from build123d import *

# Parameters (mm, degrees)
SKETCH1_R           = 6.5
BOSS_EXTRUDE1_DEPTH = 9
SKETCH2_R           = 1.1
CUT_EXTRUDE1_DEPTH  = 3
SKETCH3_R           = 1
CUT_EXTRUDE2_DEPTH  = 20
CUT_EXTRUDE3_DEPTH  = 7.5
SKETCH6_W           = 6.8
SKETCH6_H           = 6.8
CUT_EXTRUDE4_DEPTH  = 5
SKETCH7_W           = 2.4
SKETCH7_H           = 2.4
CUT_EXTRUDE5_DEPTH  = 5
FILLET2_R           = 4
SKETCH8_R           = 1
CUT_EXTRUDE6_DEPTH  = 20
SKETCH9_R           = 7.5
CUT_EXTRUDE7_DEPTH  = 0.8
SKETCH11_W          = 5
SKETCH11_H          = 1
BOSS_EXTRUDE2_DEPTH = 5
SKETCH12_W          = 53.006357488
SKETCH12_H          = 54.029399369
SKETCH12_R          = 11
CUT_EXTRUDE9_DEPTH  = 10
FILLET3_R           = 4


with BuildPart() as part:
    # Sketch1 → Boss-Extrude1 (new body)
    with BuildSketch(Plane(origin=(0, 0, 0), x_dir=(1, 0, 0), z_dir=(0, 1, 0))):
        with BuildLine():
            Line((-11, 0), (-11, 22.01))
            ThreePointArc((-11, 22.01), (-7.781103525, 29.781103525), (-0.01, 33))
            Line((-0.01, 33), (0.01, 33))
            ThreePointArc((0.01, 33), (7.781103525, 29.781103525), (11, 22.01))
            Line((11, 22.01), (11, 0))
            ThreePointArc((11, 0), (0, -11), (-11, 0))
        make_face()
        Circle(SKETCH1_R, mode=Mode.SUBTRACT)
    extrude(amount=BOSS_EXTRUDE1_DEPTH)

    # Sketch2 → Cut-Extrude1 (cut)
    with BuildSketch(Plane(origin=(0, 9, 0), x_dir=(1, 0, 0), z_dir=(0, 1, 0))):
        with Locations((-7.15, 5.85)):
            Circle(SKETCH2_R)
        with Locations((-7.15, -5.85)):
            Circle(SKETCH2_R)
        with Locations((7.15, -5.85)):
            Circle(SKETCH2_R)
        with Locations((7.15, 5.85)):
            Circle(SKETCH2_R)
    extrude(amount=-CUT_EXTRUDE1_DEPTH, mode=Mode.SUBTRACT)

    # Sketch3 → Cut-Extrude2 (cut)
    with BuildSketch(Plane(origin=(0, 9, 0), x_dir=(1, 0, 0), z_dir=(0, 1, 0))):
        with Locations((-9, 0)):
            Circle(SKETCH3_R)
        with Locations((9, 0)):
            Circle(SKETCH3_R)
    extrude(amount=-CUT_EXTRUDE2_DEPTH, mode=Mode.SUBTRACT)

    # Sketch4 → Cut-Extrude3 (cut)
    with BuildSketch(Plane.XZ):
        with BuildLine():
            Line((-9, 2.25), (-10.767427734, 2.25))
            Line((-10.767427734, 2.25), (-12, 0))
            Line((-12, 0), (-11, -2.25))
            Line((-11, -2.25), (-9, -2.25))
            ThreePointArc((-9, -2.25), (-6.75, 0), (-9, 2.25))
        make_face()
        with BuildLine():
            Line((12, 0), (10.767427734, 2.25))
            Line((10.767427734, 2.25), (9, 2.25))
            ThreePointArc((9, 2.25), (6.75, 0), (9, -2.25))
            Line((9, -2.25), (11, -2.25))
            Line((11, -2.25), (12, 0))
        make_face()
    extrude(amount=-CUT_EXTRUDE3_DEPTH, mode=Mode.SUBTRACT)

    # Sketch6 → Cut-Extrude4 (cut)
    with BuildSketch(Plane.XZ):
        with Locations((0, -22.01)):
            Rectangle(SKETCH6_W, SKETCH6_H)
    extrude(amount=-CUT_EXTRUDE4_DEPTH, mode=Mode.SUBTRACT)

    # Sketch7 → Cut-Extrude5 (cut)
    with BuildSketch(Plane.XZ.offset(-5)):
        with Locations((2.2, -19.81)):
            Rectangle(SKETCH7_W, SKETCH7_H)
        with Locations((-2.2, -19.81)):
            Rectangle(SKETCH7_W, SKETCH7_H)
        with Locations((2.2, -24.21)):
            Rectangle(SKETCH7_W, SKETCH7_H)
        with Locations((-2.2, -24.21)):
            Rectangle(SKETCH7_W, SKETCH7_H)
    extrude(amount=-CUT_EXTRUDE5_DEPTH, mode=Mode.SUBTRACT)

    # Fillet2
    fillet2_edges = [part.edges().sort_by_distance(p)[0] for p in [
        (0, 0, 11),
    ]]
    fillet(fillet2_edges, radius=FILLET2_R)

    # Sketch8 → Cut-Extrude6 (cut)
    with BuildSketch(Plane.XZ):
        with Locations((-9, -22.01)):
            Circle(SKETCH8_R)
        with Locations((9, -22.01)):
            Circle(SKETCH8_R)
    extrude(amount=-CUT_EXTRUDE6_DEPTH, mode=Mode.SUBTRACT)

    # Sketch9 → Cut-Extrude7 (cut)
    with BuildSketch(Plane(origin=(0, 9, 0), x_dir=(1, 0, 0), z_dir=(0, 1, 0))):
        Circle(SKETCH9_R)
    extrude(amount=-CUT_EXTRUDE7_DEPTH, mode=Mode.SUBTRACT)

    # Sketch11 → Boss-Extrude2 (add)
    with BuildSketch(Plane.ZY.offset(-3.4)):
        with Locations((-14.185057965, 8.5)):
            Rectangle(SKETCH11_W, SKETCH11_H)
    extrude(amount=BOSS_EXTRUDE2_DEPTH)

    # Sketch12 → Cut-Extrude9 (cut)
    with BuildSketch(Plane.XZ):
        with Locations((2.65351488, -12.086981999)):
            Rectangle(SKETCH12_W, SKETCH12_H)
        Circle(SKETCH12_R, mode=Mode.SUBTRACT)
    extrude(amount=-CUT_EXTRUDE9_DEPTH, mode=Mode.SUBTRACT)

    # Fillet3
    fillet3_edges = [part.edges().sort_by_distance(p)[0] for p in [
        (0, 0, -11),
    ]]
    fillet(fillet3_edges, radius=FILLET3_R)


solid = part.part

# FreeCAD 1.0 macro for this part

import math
import FreeCAD as App
import Part
import Sketcher

V = App.Vector
Q = App.Units.Quantity


def edges_at(feature, points):
    """Names of the edges that pass closest to the given points."""
    edges = feature.Shape.Edges
    near = lambda p: min(range(len(edges)), key=lambda i: edges[i].distToShape(Part.Vertex(*p))[0])
    return sorted({f"Edge{near(p) + 1}" for p in points})

doc = App.newDocument("Part")
body = doc.addObject("PartDesign::Body", "Body")

sketch1 = body.newObject("Sketcher::SketchObject", "Sketch")
sketch1.AttachmentSupport = (doc.getObject("XZ_Plane"), [""])
sketch1.MapMode = "FlatFace"
sketch1.addGeometry(Part.LineSegment(V(-11, -22.01, 0), V(-11, 0, 0)), False)
sketch1.addGeometry(Part.ArcOfCircle(Part.Circle(V(0, 0, 0), V(0, 0, 1), 11), math.radians(0), math.radians(180)), False)
sketch1.addGeometry(Part.LineSegment(V(11, 0, 0), V(11, -22.01, 0)), False)
sketch1.addGeometry(Part.ArcOfCircle(Part.Circle(V(0.01, -22.01, 0), V(0, 0, 1), 10.99), math.radians(-90), math.radians(0)), False)
sketch1.addGeometry(Part.LineSegment(V(0.01, -33, 0), V(-0.01, -33, 0)), False)
sketch1.addGeometry(Part.ArcOfCircle(Part.Circle(V(-0.01, -22.01, 0), V(0, 0, 1), 10.99), math.radians(-180), math.radians(-90)), False)
sketch1.addGeometry(Part.Circle(V(0, 0, 0), V(0, 0, 1), 6.5), False)
sketch1.addConstraint(Sketcher.Constraint("Tangent", 0, 2, 1, 2))
sketch1.addConstraint(Sketcher.Constraint("Tangent", 1, 1, 2, 1))
sketch1.addConstraint(Sketcher.Constraint("Tangent", 2, 2, 3, 2))
sketch1.addConstraint(Sketcher.Constraint("Tangent", 3, 1, 4, 1))
sketch1.addConstraint(Sketcher.Constraint("Tangent", 4, 2, 5, 2))
sketch1.addConstraint(Sketcher.Constraint("Tangent", 5, 1, 0, 1))
sketch1.addConstraint(Sketcher.Constraint("Vertical", 0))
sketch1.addConstraint(Sketcher.Constraint("Vertical", 2))
sketch1.addConstraint(Sketcher.Constraint("Coincident", 1, 3, -1, 1))
sketch1.addConstraint(Sketcher.Constraint("Coincident", 6, 3, -1, 1))
sketch1.addConstraint(Sketcher.Constraint("Equal", 3, 5))
sketch1.addConstraint(Sketcher.Constraint("Vertical", 5, 3, 4, 2))
sketch1.addConstraint(Sketcher.Constraint("Diameter", 6, Q("13 mm")))
sketch1.addConstraint(Sketcher.Constraint("Radius", 1, Q("11 mm")))
sketch1.addConstraint(Sketcher.Constraint("Radius", 3, Q("10.99 mm")))
sketch1.addConstraint(Sketcher.Constraint("DistanceY", 3, 1, -1, 1, Q("33 mm")))
pad1 = body.newObject("PartDesign::Pad", "Pad")
pad1.Profile = sketch1
pad1.Length = 9
pad1.Reversed = True

sketch2 = body.newObject("Sketcher::SketchObject", "Sketch001")
sketch2.AttachmentSupport = (doc.getObject("XZ_Plane"), [""])
sketch2.MapMode = "FlatFace"
sketch2.AttachmentOffset = App.Placement(V(0, 0, -9), App.Rotation())
sketch2.addGeometry(Part.Circle(V(-7.15, -5.85, 0), V(0, 0, 1), 1.1), False)
sketch2.addGeometry(Part.Circle(V(-7.15, 5.85, 0), V(0, 0, 1), 1.1), False)
sketch2.addGeometry(Part.Circle(V(7.15, 5.85, 0), V(0, 0, 1), 1.1), False)
sketch2.addGeometry(Part.Circle(V(7.15, -5.85, 0), V(0, 0, 1), 1.1), False)
sketch2.addConstraint(Sketcher.Constraint("Equal", 0, 1))
sketch2.addConstraint(Sketcher.Constraint("Equal", 1, 2))
sketch2.addConstraint(Sketcher.Constraint("Equal", 2, 3))
sketch2.addConstraint(Sketcher.Constraint("Symmetric", 0, 3, 2, 3, -1, 1))
sketch2.addConstraint(Sketcher.Constraint("Symmetric", 1, 3, 3, 3, -1, 1))
sketch2.addConstraint(Sketcher.Constraint("Symmetric", 1, 3, 2, 3, -2))
sketch2.addConstraint(Sketcher.Constraint("Diameter", 0, Q("2.2 mm")))
sketch2.addConstraint(Sketcher.Constraint("DistanceY", 0, 3, 1, 3, Q("11.7 mm")))
sketch2.addConstraint(Sketcher.Constraint("DistanceX", 1, 3, 2, 3, Q("14.3 mm")))
pocket1 = body.newObject("PartDesign::Pocket", "Pocket")
pocket1.Profile = sketch2
pocket1.Length = 3
pocket1.Reversed = True

sketch3 = body.newObject("Sketcher::SketchObject", "Sketch002")
sketch3.AttachmentSupport = (doc.getObject("XZ_Plane"), [""])
sketch3.MapMode = "FlatFace"
sketch3.AttachmentOffset = App.Placement(V(0, 0, -9), App.Rotation())
sketch3.addGeometry(Part.Circle(V(-9, 0, 0), V(0, 0, 1), 1), False)
sketch3.addGeometry(Part.Circle(V(9, 0, 0), V(0, 0, 1), 1), False)
sketch3.addConstraint(Sketcher.Constraint("Equal", 0, 1))
sketch3.addConstraint(Sketcher.Constraint("Symmetric", 0, 3, 1, 3, -1, 1))
sketch3.addConstraint(Sketcher.Constraint("PointOnObject", 0, 3, -1))
sketch3.addConstraint(Sketcher.Constraint("Diameter", 0, Q("2 mm")))
sketch3.addConstraint(Sketcher.Constraint("DistanceX", 0, 3, -1, 1, Q("9 mm")))
pocket2 = body.newObject("PartDesign::Pocket", "Pocket001")
pocket2.Profile = sketch3
pocket2.Length = 20
pocket2.Reversed = True

sketch4 = body.newObject("Sketcher::SketchObject", "Sketch003")
sketch4.AttachmentSupport = (doc.getObject("XZ_Plane"), [""])
sketch4.MapMode = "FlatFace"
sketch4.addGeometry(Part.LineSegment(V(-9, 2.25, 0), V(-10.767428, 2.25, 0)), False)
sketch4.addGeometry(Part.LineSegment(V(-10.767428, 2.25, 0), V(-12, 0, 0)), False)
sketch4.addGeometry(Part.LineSegment(V(-12, 0, 0), V(-11, -2.25, 0)), False)
sketch4.addGeometry(Part.LineSegment(V(-11, -2.25, 0), V(-9, -2.25, 0)), False)
sketch4.addGeometry(Part.ArcOfCircle(Part.Circle(V(-9, 0, 0), V(0, 0, 1), 2.25), math.radians(-90), math.radians(90)), False)
sketch4.addGeometry(Part.LineSegment(V(12, 0, 0), V(10.767428, 2.25, 0)), False)
sketch4.addGeometry(Part.LineSegment(V(10.767428, 2.25, 0), V(9, 2.25, 0)), False)
sketch4.addGeometry(Part.ArcOfCircle(Part.Circle(V(9, 0, 0), V(0, 0, 1), 2.25), math.radians(90), math.radians(270)), False)
sketch4.addGeometry(Part.LineSegment(V(9, -2.25, 0), V(11, -2.25, 0)), False)
sketch4.addGeometry(Part.LineSegment(V(11, -2.25, 0), V(12, 0, 0)), False)
sketch4.addConstraint(Sketcher.Constraint("Coincident", 0, 2, 1, 1))
sketch4.addConstraint(Sketcher.Constraint("Coincident", 1, 2, 2, 1))
sketch4.addConstraint(Sketcher.Constraint("Coincident", 2, 2, 3, 1))
sketch4.addConstraint(Sketcher.Constraint("Tangent", 3, 2, 4, 1))
sketch4.addConstraint(Sketcher.Constraint("Tangent", 4, 2, 0, 1))
sketch4.addConstraint(Sketcher.Constraint("Coincident", 5, 2, 6, 1))
sketch4.addConstraint(Sketcher.Constraint("Tangent", 6, 2, 7, 1))
sketch4.addConstraint(Sketcher.Constraint("Tangent", 7, 2, 8, 1))
sketch4.addConstraint(Sketcher.Constraint("Coincident", 8, 2, 9, 1))
sketch4.addConstraint(Sketcher.Constraint("Coincident", 9, 2, 5, 1))
sketch4.addConstraint(Sketcher.Constraint("Horizontal", 0))
sketch4.addConstraint(Sketcher.Constraint("Horizontal", 3))
sketch4.addConstraint(Sketcher.Constraint("Horizontal", 6))
sketch4.addConstraint(Sketcher.Constraint("Horizontal", 8))
sketch4.addConstraint(Sketcher.Constraint("Equal", 4, 7))
sketch4.addConstraint(Sketcher.Constraint("Symmetric", 4, 3, 7, 3, -1, 1))
sketch4.addConstraint(Sketcher.Constraint("Symmetric", 1, 2, 9, 2, -1, 1))
sketch4.addConstraint(Sketcher.Constraint("Symmetric", 0, 2, 5, 2, -2))
sketch4.addConstraint(Sketcher.Constraint("PointOnObject", 1, 2, -1))
sketch4.addConstraint(Sketcher.Constraint("Equal", 3, 8))
sketch4.addConstraint(Sketcher.Constraint("DistanceX", 3, 1, 3, 2, Q("2 mm")))
sketch4.addConstraint(Sketcher.Constraint("Radius", 4, Q("2.25 mm")))
sketch4.addConstraint(Sketcher.Constraint("DistanceX", 4, 3, -1, 1, Q("9 mm")))
sketch4.addConstraint(Sketcher.Constraint("DistanceX", 1, 2, -1, 1, Q("12 mm")))
sketch4.addConstraint(Sketcher.Constraint("Distance", 1, Q("2.565489 mm")))
pocket3 = body.newObject("PartDesign::Pocket", "Pocket002")
pocket3.Profile = sketch4
pocket3.Length = 7.5

sketch5 = body.newObject("Sketcher::SketchObject", "Sketch004")
sketch5.AttachmentSupport = (doc.getObject("XZ_Plane"), [""])
sketch5.MapMode = "FlatFace"
sketch5.addGeometry(Part.LineSegment(V(-3.4, -18.61, 0), V(-3.4, -25.41, 0)), False)
sketch5.addGeometry(Part.LineSegment(V(-3.4, -25.41, 0), V(3.4, -25.41, 0)), False)
sketch5.addGeometry(Part.LineSegment(V(3.4, -25.41, 0), V(3.4, -18.61, 0)), False)
sketch5.addGeometry(Part.LineSegment(V(3.4, -18.61, 0), V(-3.4, -18.61, 0)), False)
sketch5.addConstraint(Sketcher.Constraint("Coincident", 0, 2, 1, 1))
sketch5.addConstraint(Sketcher.Constraint("Coincident", 1, 2, 2, 1))
sketch5.addConstraint(Sketcher.Constraint("Coincident", 2, 2, 3, 1))
sketch5.addConstraint(Sketcher.Constraint("Coincident", 3, 2, 0, 1))
sketch5.addConstraint(Sketcher.Constraint("Vertical", 0))
sketch5.addConstraint(Sketcher.Constraint("Horizontal", 1))
sketch5.addConstraint(Sketcher.Constraint("Vertical", 2))
sketch5.addConstraint(Sketcher.Constraint("Horizontal", 3))
sketch5.addConstraint(Sketcher.Constraint("Equal", 3, 0))
sketch5.addConstraint(Sketcher.Constraint("DistanceX", 1, 1, 1, 2, Q("6.8 mm")))
sketch5.addConstraint(Sketcher.Constraint("DistanceX", 0, 2, -1, 1, Q("3.4 mm")))
sketch5.addConstraint(Sketcher.Constraint("DistanceY", 0, 2, -1, 1, Q("25.41 mm")))
pocket4 = body.newObject("PartDesign::Pocket", "Pocket003")
pocket4.Profile = sketch5
pocket4.Length = 5

sketch6 = body.newObject("Sketcher::SketchObject", "Sketch005")
sketch6.AttachmentSupport = (doc.getObject("XZ_Plane"), [""])
sketch6.MapMode = "FlatFace"
sketch6.AttachmentOffset = App.Placement(V(0, 0, -5), App.Rotation())
sketch6.addGeometry(Part.LineSegment(V(1, -18.61, 0), V(1, -21.01, 0)), False)
sketch6.addGeometry(Part.LineSegment(V(1, -21.01, 0), V(3.4, -21.01, 0)), False)
sketch6.addGeometry(Part.LineSegment(V(3.4, -21.01, 0), V(3.4, -18.61, 0)), False)
sketch6.addGeometry(Part.LineSegment(V(3.4, -18.61, 0), V(1, -18.61, 0)), False)
sketch6.addGeometry(Part.LineSegment(V(-3.4, -18.61, 0), V(-3.4, -21.01, 0)), False)
sketch6.addGeometry(Part.LineSegment(V(-3.4, -21.01, 0), V(-1, -21.01, 0)), False)
sketch6.addGeometry(Part.LineSegment(V(-1, -21.01, 0), V(-1, -18.61, 0)), False)
sketch6.addGeometry(Part.LineSegment(V(-1, -18.61, 0), V(-3.4, -18.61, 0)), False)
sketch6.addGeometry(Part.LineSegment(V(1, -23.01, 0), V(1, -25.41, 0)), False)
sketch6.addGeometry(Part.LineSegment(V(1, -25.41, 0), V(3.4, -25.41, 0)), False)
sketch6.addGeometry(Part.LineSegment(V(3.4, -25.41, 0), V(3.4, -23.01, 0)), False)
sketch6.addGeometry(Part.LineSegment(V(3.4, -23.01, 0), V(1, -23.01, 0)), False)
sketch6.addGeometry(Part.LineSegment(V(-3.4, -23.01, 0), V(-3.4, -25.41, 0)), False)
sketch6.addGeometry(Part.LineSegment(V(-3.4, -25.41, 0), V(-1, -25.41, 0)), False)
sketch6.addGeometry(Part.LineSegment(V(-1, -25.41, 0), V(-1, -23.01, 0)), False)
sketch6.addGeometry(Part.LineSegment(V(-1, -23.01, 0), V(-3.4, -23.01, 0)), False)
sketch6.addConstraint(Sketcher.Constraint("Coincident", 0, 2, 1, 1))
sketch6.addConstraint(Sketcher.Constraint("Coincident", 1, 2, 2, 1))
sketch6.addConstraint(Sketcher.Constraint("Coincident", 2, 2, 3, 1))
sketch6.addConstraint(Sketcher.Constraint("Coincident", 3, 2, 0, 1))
sketch6.addConstraint(Sketcher.Constraint("Coincident", 4, 2, 5, 1))
sketch6.addConstraint(Sketcher.Constraint("Coincident", 5, 2, 6, 1))
sketch6.addConstraint(Sketcher.Constraint("Coincident", 6, 2, 7, 1))
sketch6.addConstraint(Sketcher.Constraint("Coincident", 7, 2, 4, 1))
sketch6.addConstraint(Sketcher.Constraint("Coincident", 8, 2, 9, 1))
sketch6.addConstraint(Sketcher.Constraint("Coincident", 9, 2, 10, 1))
sketch6.addConstraint(Sketcher.Constraint("Coincident", 10, 2, 11, 1))
sketch6.addConstraint(Sketcher.Constraint("Coincident", 11, 2, 8, 1))
sketch6.addConstraint(Sketcher.Constraint("Coincident", 12, 2, 13, 1))
sketch6.addConstraint(Sketcher.Constraint("Coincident", 13, 2, 14, 1))
sketch6.addConstraint(Sketcher.Constraint("Coincident", 14, 2, 15, 1))
sketch6.addConstraint(Sketcher.Constraint("Coincident", 15, 2, 12, 1))
sketch6.addConstraint(Sketcher.Constraint("Vertical", 0))
sketch6.addConstraint(Sketcher.Constraint("Horizontal", 1))
sketch6.addConstraint(Sketcher.Constraint("Vertical", 2))
sketch6.addConstraint(Sketcher.Constraint("Horizontal", 3))
sketch6.addConstraint(Sketcher.Constraint("Vertical", 4))
sketch6.addConstraint(Sketcher.Constraint("Horizontal", 5))
sketch6.addConstraint(Sketcher.Constraint("Vertical", 6))
sketch6.addConstraint(Sketcher.Constraint("Horizontal", 7))
sketch6.addConstraint(Sketcher.Constraint("Vertical", 8))
sketch6.addConstraint(Sketcher.Constraint("Horizontal", 9))
sketch6.addConstraint(Sketcher.Constraint("Vertical", 10))
sketch6.addConstraint(Sketcher.Constraint("Horizontal", 11))
sketch6.addConstraint(Sketcher.Constraint("Vertical", 12))
sketch6.addConstraint(Sketcher.Constraint("Horizontal", 13))
sketch6.addConstraint(Sketcher.Constraint("Vertical", 14))
sketch6.addConstraint(Sketcher.Constraint("Horizontal", 15))
sketch6.addConstraint(Sketcher.Constraint("Symmetric", 1, 2, 4, 2, -2))
sketch6.addConstraint(Sketcher.Constraint("Symmetric", 3, 2, 6, 2, -2))
sketch6.addConstraint(Sketcher.Constraint("Symmetric", 9, 2, 12, 2, -2))
sketch6.addConstraint(Sketcher.Constraint("Symmetric", 11, 2, 14, 2, -2))
sketch6.addConstraint(Sketcher.Constraint("Vertical", 3, 2, 8, 2))
sketch6.addConstraint(Sketcher.Constraint("Vertical", 2, 2, 9, 2))
sketch6.addConstraint(Sketcher.Constraint("Equal", 15, 0))
sketch6.addConstraint(Sketcher.Constraint("Equal", 6, 8))
sketch6.addConstraint(Sketcher.Constraint("DistanceX", 1, 1, 1, 2, Q("2.4 mm")))
sketch6.addConstraint(Sketcher.Constraint("DistanceX", -1, 1, 0, 2, Q("1 mm")))
sketch6.addConstraint(Sketcher.Constraint("DistanceY", 10, 2, 1, 2, Q("2 mm")))
sketch6.addConstraint(Sketcher.Constraint("DistanceY", 0, 2, -1, 1, Q("21.01 mm")))
pocket5 = body.newObject("PartDesign::Pocket", "Pocket004")
pocket5.Profile = sketch6
pocket5.Length = 5
doc.recompute()

fillet = body.newObject("PartDesign::Fillet", "Fillet")
fillet.Base = (pocket5, edges_at(pocket5, [(0, 0, 11)]))
fillet.Radius = 4

sketch7 = body.newObject("Sketcher::SketchObject", "Sketch006")
sketch7.AttachmentSupport = (doc.getObject("XZ_Plane"), [""])
sketch7.MapMode = "FlatFace"
sketch7.addGeometry(Part.Circle(V(-9, -22.01, 0), V(0, 0, 1), 1), False)
sketch7.addGeometry(Part.Circle(V(9, -22.01, 0), V(0, 0, 1), 1), False)
sketch7.addConstraint(Sketcher.Constraint("Equal", 0, 1))
sketch7.addConstraint(Sketcher.Constraint("Symmetric", 0, 3, 1, 3, -2))
sketch7.addConstraint(Sketcher.Constraint("Diameter", 0, Q("2 mm")))
sketch7.addConstraint(Sketcher.Constraint("DistanceX", 0, 3, -1, 1, Q("9 mm")))
sketch7.addConstraint(Sketcher.Constraint("DistanceY", 0, 3, -1, 1, Q("22.01 mm")))
pocket6 = body.newObject("PartDesign::Pocket", "Pocket005")
pocket6.Profile = sketch7
pocket6.Length = 20

sketch8 = body.newObject("Sketcher::SketchObject", "Sketch007")
sketch8.AttachmentSupport = (doc.getObject("XZ_Plane"), [""])
sketch8.MapMode = "FlatFace"
sketch8.AttachmentOffset = App.Placement(V(0, 0, -9), App.Rotation())
sketch8.addGeometry(Part.Circle(V(0, 0, 0), V(0, 0, 1), 7.5), False)
sketch8.addConstraint(Sketcher.Constraint("Coincident", 0, 3, -1, 1))
sketch8.addConstraint(Sketcher.Constraint("Diameter", 0, Q("15 mm")))
pocket7 = body.newObject("PartDesign::Pocket", "Pocket006")
pocket7.Profile = sketch8
pocket7.Length = 0.8
pocket7.Reversed = True

sketch9 = body.newObject("Sketcher::SketchObject", "Sketch008")
sketch9.AttachmentSupport = (doc.getObject("YZ_Plane"), [""])
sketch9.MapMode = "FlatFace"
sketch9.AttachmentOffset = App.Placement(V(0, 0, 3.4), App.Rotation())
sketch9.addGeometry(Part.LineSegment(V(9, -16.685058, 0), V(8, -16.685058, 0)), False)
sketch9.addGeometry(Part.LineSegment(V(8, -16.685058, 0), V(8, -11.685058, 0)), False)
sketch9.addGeometry(Part.LineSegment(V(8, -11.685058, 0), V(9, -11.685058, 0)), False)
sketch9.addGeometry(Part.LineSegment(V(9, -11.685058, 0), V(9, -16.685058, 0)), False)
sketch9.addConstraint(Sketcher.Constraint("Coincident", 0, 2, 1, 1))
sketch9.addConstraint(Sketcher.Constraint("Coincident", 1, 2, 2, 1))
sketch9.addConstraint(Sketcher.Constraint("Coincident", 2, 2, 3, 1))
sketch9.addConstraint(Sketcher.Constraint("Coincident", 3, 2, 0, 1))
sketch9.addConstraint(Sketcher.Constraint("Horizontal", 0))
sketch9.addConstraint(Sketcher.Constraint("Vertical", 1))
sketch9.addConstraint(Sketcher.Constraint("Horizontal", 2))
sketch9.addConstraint(Sketcher.Constraint("Vertical", 3))
sketch9.addConstraint(Sketcher.Constraint("DistanceX", 0, 2, 0, 1, Q("1 mm")))
sketch9.addConstraint(Sketcher.Constraint("DistanceY", 1, 1, 1, 2, Q("5 mm")))
sketch9.addConstraint(Sketcher.Constraint("DistanceX", -1, 1, 0, 2, Q("8 mm")))
sketch9.addConstraint(Sketcher.Constraint("DistanceY", 0, 2, -1, 1, Q("16.685058 mm")))
pad2 = body.newObject("PartDesign::Pad", "Pad001")
pad2.Profile = sketch9
pad2.Length = 5
pad2.Reversed = True

sketch10 = body.newObject("Sketcher::SketchObject", "Sketch009")
sketch10.AttachmentSupport = (doc.getObject("XZ_Plane"), [""])
sketch10.MapMode = "FlatFace"
sketch10.addGeometry(Part.LineSegment(V(-23.849664, 14.927718, 0), V(-23.849664, -39.101682, 0)), False)
sketch10.addGeometry(Part.LineSegment(V(-23.849664, -39.101682, 0), V(29.156694, -39.101682, 0)), False)
sketch10.addGeometry(Part.LineSegment(V(29.156694, -39.101682, 0), V(29.156694, 14.927718, 0)), False)
sketch10.addGeometry(Part.LineSegment(V(29.156694, 14.927718, 0), V(-23.849664, 14.927718, 0)), False)
sketch10.addGeometry(Part.Circle(V(0, 0, 0), V(0, 0, 1), 11), False)
sketch10.addConstraint(Sketcher.Constraint("Coincident", 0, 2, 1, 1))
sketch10.addConstraint(Sketcher.Constraint("Coincident", 1, 2, 2, 1))
sketch10.addConstraint(Sketcher.Constraint("Coincident", 2, 2, 3, 1))
sketch10.addConstraint(Sketcher.Constraint("Coincident", 3, 2, 0, 1))
sketch10.addConstraint(Sketcher.Constraint("Vertical", 0))
sketch10.addConstraint(Sketcher.Constraint("Horizontal", 1))
sketch10.addConstraint(Sketcher.Constraint("Vertical", 2))
sketch10.addConstraint(Sketcher.Constraint("Horizontal", 3))
sketch10.addConstraint(Sketcher.Constraint("Coincident", 4, 3, -1, 1))
sketch10.addConstraint(Sketcher.Constraint("Diameter", 4, Q("22 mm")))
sketch10.addConstraint(Sketcher.Constraint("DistanceY", 0, 2, 0, 1, Q("54.029399 mm")))
sketch10.addConstraint(Sketcher.Constraint("DistanceX", 1, 1, 1, 2, Q("53.006357 mm")))
sketch10.addConstraint(Sketcher.Constraint("DistanceY", 0, 2, -1, 1, Q("39.101682 mm")))
sketch10.addConstraint(Sketcher.Constraint("DistanceX", 0, 2, -1, 1, Q("23.849664 mm")))
pocket8 = body.newObject("PartDesign::Pocket", "Pocket007")
pocket8.Profile = sketch10
pocket8.Length = 10
doc.recompute()

fillet2 = body.newObject("PartDesign::Fillet", "Fillet001")
fillet2.Base = (pocket8, edges_at(pocket8, [(0, 0, -11)]))
fillet2.Radius = 4

doc.recompute()
